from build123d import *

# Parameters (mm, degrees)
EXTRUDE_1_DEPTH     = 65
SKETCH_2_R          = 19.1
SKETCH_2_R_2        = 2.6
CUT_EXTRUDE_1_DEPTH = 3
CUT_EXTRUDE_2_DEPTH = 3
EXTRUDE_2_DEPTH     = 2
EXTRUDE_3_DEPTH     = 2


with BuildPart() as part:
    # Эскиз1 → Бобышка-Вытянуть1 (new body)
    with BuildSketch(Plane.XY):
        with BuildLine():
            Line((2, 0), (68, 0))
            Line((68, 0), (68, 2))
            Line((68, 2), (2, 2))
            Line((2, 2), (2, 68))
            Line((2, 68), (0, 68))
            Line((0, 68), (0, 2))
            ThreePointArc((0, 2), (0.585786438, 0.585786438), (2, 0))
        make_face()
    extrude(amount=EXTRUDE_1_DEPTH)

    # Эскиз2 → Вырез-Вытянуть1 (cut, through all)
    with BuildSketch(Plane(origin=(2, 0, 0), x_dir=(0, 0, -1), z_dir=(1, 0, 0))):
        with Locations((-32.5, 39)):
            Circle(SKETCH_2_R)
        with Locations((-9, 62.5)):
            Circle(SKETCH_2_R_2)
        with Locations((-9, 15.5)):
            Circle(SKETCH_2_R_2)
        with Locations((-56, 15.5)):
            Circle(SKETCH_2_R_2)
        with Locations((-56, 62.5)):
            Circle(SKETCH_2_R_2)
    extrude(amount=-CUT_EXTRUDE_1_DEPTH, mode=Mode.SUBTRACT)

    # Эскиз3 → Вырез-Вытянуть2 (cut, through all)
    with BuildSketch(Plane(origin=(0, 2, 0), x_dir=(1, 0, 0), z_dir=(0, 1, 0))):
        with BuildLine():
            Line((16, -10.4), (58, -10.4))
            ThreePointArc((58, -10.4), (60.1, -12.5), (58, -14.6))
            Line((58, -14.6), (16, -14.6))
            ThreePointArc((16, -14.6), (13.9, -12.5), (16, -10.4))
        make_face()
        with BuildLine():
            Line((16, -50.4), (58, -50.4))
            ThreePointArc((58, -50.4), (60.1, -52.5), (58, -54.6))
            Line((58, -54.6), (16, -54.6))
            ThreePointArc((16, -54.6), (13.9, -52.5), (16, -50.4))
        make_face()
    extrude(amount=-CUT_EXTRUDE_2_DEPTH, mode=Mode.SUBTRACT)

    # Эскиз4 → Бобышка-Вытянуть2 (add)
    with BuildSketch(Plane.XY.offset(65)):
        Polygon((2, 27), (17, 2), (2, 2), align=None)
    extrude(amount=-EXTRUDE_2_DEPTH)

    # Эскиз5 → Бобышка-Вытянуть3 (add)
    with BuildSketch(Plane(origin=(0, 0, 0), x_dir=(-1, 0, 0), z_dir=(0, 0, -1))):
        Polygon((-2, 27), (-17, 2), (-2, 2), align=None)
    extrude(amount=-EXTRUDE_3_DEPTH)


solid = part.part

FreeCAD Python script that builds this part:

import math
import FreeCAD as App
import Part
import Sketcher

V = App.Vector
Q = App.Units.Quantity

doc = App.newDocument("Part")
body = doc.addObject("PartDesign::Body", "Body")

sketch1 = doc.addObject("Sketcher::SketchObject", "Sketch")
body.addObject(sketch1)
sketch1.AttachmentSupport = (doc.XY_Plane, [""])
sketch1.MapMode = "FlatFace"
sketch1.addGeometry([
    Part.LineSegment(V(2, 0, 0), V(68, 0, 0)),
    Part.LineSegment(V(68, 0, 0), V(68, 2, 0)),
    Part.LineSegment(V(68, 2, 0), V(2, 2, 0)),
    Part.LineSegment(V(2, 2, 0), V(2, 68, 0)),
    Part.LineSegment(V(2, 68, 0), V(0, 68, 0)),
    Part.LineSegment(V(0, 68, 0), V(0, 2, 0)),
    Part.ArcOfCircle(Part.Circle(V(2, 2, 0), V(0, 0, 1), 2), math.radians(-180), math.radians(-90)),
], False)
sketch1.addConstraint([
    Sketcher.Constraint("Coincident", 0, 2, 1, 1),
    Sketcher.Constraint("Coincident", 1, 2, 2, 1),
    Sketcher.Constraint("Coincident", 2, 2, 3, 1),
    Sketcher.Constraint("Coincident", 3, 2, 4, 1),
    Sketcher.Constraint("Coincident", 4, 2, 5, 1),
    Sketcher.Constraint("Tangent", 5, 2, 6, 1),
    Sketcher.Constraint("Tangent", 6, 2, 0, 1),
    Sketcher.Constraint("Horizontal", 0),
    Sketcher.Constraint("Vertical", 1),
    Sketcher.Constraint("Horizontal", 2),
    Sketcher.Constraint("Vertical", 3),
    Sketcher.Constraint("Horizontal", 4),
    Sketcher.Constraint("Vertical", 5),
    Sketcher.Constraint("Coincident", 2, 2, 6, 3),
    Sketcher.Constraint("PointOnObject", 0, 2, -1),
    Sketcher.Constraint("PointOnObject", 4, 2, -2),
    Sketcher.Constraint("Equal", 2, 3),
    Sketcher.Constraint("Radius", 6, Q("2 mm")),
    Sketcher.Constraint("DistanceX", 0, 1, 0, 2, Q("66 mm")),
])
pad1 = doc.addObject("PartDesign::Pad", "Pad")
body.addObject(pad1)
pad1.Profile = sketch1
pad1.Length = 65

sketch2 = doc.addObject("Sketcher::SketchObject", "Sketch001")
body.addObject(sketch2)
sketch2.AttachmentSupport = (doc.YZ_Plane, [""])
sketch2.MapMode = "FlatFace"
sketch2.AttachmentOffset = App.Placement(V(0, 0, 2), App.Rotation())
sketch2.addGeometry([
    Part.Circle(V(39, 32.5, 0), V(0, 0, 1), 19.1),
    Part.Circle(V(62.5, 9, 0), V(0, 0, 1), 2.6),
    Part.Circle(V(15.5, 9, 0), V(0, 0, 1), 2.6),
    Part.Circle(V(15.5, 56, 0), V(0, 0, 1), 2.6),
    Part.Circle(V(62.5, 56, 0), V(0, 0, 1), 2.6),
], False)
sketch2.addConstraint([
    Sketcher.Constraint("Equal", 1, 2),
    Sketcher.Constraint("Equal", 2, 3),
    Sketcher.Constraint("Equal", 3, 4),
    Sketcher.Constraint("Horizontal", 1, 3, 2, 3),
    Sketcher.Constraint("Horizontal", 3, 3, 4, 3),
    Sketcher.Constraint("Vertical", 2, 3, 3, 3),
    Sketcher.Constraint("Vertical", 1, 3, 4, 3),
    Sketcher.Constraint("Diameter", 0, Q("38.2 mm")),
    Sketcher.Constraint("Diameter", 1, Q("5.2 mm")),
    Sketcher.Constraint("DistanceX", -1, 1, 0, 3, Q("39 mm")),
    Sketcher.Constraint("DistanceY", -1, 1, 1, 3, Q("9 mm")),
    Sketcher.Constraint("DistanceY", -1, 1, 3, 3, Q("56 mm")),
    Sketcher.Constraint("DistanceX", 2, 3, 1, 3, Q("47 mm")),
    Sketcher.Constraint("DistanceY", -1, 1, 0, 3, Q("32.5 mm")),
    Sketcher.Constraint("DistanceX", -1, 1, 1, 3, Q("62.5 mm")),
])
pocket1 = doc.addObject("PartDesign::Pocket", "Pocket")
body.addObject(pocket1)
pocket1.Profile = sketch2
pocket1.Type = "ThroughAll"

sketch3 = doc.addObject("Sketcher::SketchObject", "Sketch002")
body.addObject(sketch3)
sketch3.AttachmentSupport = (doc.XZ_Plane, [""])
sketch3.MapMode = "FlatFace"
sketch3.AttachmentOffset = App.Placement(V(0, 0, -2), App.Rotation())
sketch3.addGeometry([
    Part.LineSegment(V(58, 10.4, 0), V(16, 10.4, 0)),
    Part.ArcOfCircle(Part.Circle(V(16, 12.5, 0), V(0, 0, 1), 2.1), math.radians(90), math.radians(270)),
    Part.LineSegment(V(16, 14.6, 0), V(58, 14.6, 0)),
    Part.ArcOfCircle(Part.Circle(V(58, 12.5, 0), V(0, 0, 1), 2.1), math.radians(-90), math.radians(90)),
    Part.LineSegment(V(58, 50.4, 0), V(16, 50.4, 0)),
    Part.ArcOfCircle(Part.Circle(V(16, 52.5, 0), V(0, 0, 1), 2.1), math.radians(90), math.radians(270)),
    Part.LineSegment(V(16, 54.6, 0), V(58, 54.6, 0)),
    Part.ArcOfCircle(Part.Circle(V(58, 52.5, 0), V(0, 0, 1), 2.1), math.radians(-90), math.radians(90)),
], False)
sketch3.addConstraint([
    Sketcher.Constraint("Tangent", 0, 2, 1, 2),
    Sketcher.Constraint("Tangent", 1, 1, 2, 1),
    Sketcher.Constraint("Tangent", 2, 2, 3, 2),
    Sketcher.Constraint("Tangent", 3, 1, 0, 1),
    Sketcher.Constraint("Tangent", 4, 2, 5, 2),
    Sketcher.Constraint("Tangent", 5, 1, 6, 1),
    Sketcher.Constraint("Tangent", 6, 2, 7, 2),
    Sketcher.Constraint("Tangent", 7, 1, 4, 1),
    Sketcher.Constraint("Horizontal", 0),
    Sketcher.Constraint("Horizontal", 2),
    Sketcher.Constraint("Horizontal", 4),
    Sketcher.Constraint("Horizontal", 6),
    Sketcher.Constraint("Equal", 3, 5),
    Sketcher.Constraint("Vertical", 1, 3, 5, 3),
    Sketcher.Constraint("Vertical", 3, 3, 7, 3),
    Sketcher.Constraint("Radius", 1, Q("2.1 mm")),
    Sketcher.Constraint("DistanceX", 0, 2, 0, 1, Q("42 mm")),
    Sketcher.Constraint("DistanceX", -1, 1, 1, 3, Q("16 mm")),
    Sketcher.Constraint("DistanceY", 1, 3, 5, 3, Q("40 mm")),
    Sketcher.Constraint("DistanceY", -1, 1, 1, 3, Q("12.5 mm")),
])
pocket2 = doc.addObject("PartDesign::Pocket", "Pocket001")
body.addObject(pocket2)
pocket2.Profile = sketch3
pocket2.Type = "ThroughAll"
pocket2.Reversed = True

sketch4 = doc.addObject("Sketcher::SketchObject", "Sketch003")
body.addObject(sketch4)
sketch4.AttachmentSupport = (doc.XY_Plane, [""])
sketch4.MapMode = "FlatFace"
sketch4.AttachmentOffset = App.Placement(V(0, 0, 65), App.Rotation())
sketch4.addGeometry([
    Part.LineSegment(V(17, 2, 0), V(2, 27, 0)),
    Part.LineSegment(V(2, 27, 0), V(2, 2, 0)),
    Part.LineSegment(V(2, 2, 0), V(17, 2, 0)),
], False)
sketch4.addConstraint([
    Sketcher.Constraint("Coincident", 0, 2, 1, 1),
    Sketcher.Constraint("Coincident", 1, 2, 2, 1),
    Sketcher.Constraint("Coincident", 2, 2, 0, 1),
    Sketcher.Constraint("Vertical", 1),
    Sketcher.Constraint("Horizontal", 2),
    Sketcher.Constraint("DistanceX", 2, 1, 2, 2, Q("15 mm")),
    Sketcher.Constraint("DistanceY", 1, 2, 1, 1, Q("25 mm")),
    Sketcher.Constraint("DistanceX", -1, 1, 0, 2, Q("2 mm")),
    Sketcher.Constraint("DistanceY", -1, 1, 0, 2, Q("27 mm")),
])
pad2 = doc.addObject("PartDesign::Pad", "Pad001")
body.addObject(pad2)
pad2.Profile = sketch4
pad2.Length = 2
pad2.Reversed = True

sketch5 = doc.addObject("Sketcher::SketchObject", "Sketch004")
body.addObject(sketch5)
sketch5.AttachmentSupport = (doc.XY_Plane, [""])
sketch5.MapMode = "FlatFace"
sketch5.addGeometry([
    Part.LineSegment(V(2, 27, 0), V(17, 2, 0)),
    Part.LineSegment(V(17, 2, 0), V(2, 2, 0)),
    Part.LineSegment(V(2, 2, 0), V(2, 27, 0)),
], False)
sketch5.addConstraint([
    Sketcher.Constraint("Coincident", 0, 2, 1, 1),
    Sketcher.Constraint("Coincident", 1, 2, 2, 1),
    Sketcher.Constraint("Coincident", 2, 2, 0, 1),
    Sketcher.Constraint("Horizontal", 1),
    Sketcher.Constraint("Vertical", 2),
    Sketcher.Constraint("DistanceX", 1, 2, 1, 1, Q("15 mm")),
    Sketcher.Constraint("DistanceY", 2, 1, 2, 2, Q("25 mm")),
    Sketcher.Constraint("DistanceX", -1, 1, 0, 2, Q("17 mm")),
    Sketcher.Constraint("DistanceY", -1, 1, 0, 2, Q("2 mm")),
])
pad3 = doc.addObject("PartDesign::Pad", "Pad002")
body.addObject(pad3)
pad3.Profile = sketch5
pad3.Length = 2

doc.recompute()
